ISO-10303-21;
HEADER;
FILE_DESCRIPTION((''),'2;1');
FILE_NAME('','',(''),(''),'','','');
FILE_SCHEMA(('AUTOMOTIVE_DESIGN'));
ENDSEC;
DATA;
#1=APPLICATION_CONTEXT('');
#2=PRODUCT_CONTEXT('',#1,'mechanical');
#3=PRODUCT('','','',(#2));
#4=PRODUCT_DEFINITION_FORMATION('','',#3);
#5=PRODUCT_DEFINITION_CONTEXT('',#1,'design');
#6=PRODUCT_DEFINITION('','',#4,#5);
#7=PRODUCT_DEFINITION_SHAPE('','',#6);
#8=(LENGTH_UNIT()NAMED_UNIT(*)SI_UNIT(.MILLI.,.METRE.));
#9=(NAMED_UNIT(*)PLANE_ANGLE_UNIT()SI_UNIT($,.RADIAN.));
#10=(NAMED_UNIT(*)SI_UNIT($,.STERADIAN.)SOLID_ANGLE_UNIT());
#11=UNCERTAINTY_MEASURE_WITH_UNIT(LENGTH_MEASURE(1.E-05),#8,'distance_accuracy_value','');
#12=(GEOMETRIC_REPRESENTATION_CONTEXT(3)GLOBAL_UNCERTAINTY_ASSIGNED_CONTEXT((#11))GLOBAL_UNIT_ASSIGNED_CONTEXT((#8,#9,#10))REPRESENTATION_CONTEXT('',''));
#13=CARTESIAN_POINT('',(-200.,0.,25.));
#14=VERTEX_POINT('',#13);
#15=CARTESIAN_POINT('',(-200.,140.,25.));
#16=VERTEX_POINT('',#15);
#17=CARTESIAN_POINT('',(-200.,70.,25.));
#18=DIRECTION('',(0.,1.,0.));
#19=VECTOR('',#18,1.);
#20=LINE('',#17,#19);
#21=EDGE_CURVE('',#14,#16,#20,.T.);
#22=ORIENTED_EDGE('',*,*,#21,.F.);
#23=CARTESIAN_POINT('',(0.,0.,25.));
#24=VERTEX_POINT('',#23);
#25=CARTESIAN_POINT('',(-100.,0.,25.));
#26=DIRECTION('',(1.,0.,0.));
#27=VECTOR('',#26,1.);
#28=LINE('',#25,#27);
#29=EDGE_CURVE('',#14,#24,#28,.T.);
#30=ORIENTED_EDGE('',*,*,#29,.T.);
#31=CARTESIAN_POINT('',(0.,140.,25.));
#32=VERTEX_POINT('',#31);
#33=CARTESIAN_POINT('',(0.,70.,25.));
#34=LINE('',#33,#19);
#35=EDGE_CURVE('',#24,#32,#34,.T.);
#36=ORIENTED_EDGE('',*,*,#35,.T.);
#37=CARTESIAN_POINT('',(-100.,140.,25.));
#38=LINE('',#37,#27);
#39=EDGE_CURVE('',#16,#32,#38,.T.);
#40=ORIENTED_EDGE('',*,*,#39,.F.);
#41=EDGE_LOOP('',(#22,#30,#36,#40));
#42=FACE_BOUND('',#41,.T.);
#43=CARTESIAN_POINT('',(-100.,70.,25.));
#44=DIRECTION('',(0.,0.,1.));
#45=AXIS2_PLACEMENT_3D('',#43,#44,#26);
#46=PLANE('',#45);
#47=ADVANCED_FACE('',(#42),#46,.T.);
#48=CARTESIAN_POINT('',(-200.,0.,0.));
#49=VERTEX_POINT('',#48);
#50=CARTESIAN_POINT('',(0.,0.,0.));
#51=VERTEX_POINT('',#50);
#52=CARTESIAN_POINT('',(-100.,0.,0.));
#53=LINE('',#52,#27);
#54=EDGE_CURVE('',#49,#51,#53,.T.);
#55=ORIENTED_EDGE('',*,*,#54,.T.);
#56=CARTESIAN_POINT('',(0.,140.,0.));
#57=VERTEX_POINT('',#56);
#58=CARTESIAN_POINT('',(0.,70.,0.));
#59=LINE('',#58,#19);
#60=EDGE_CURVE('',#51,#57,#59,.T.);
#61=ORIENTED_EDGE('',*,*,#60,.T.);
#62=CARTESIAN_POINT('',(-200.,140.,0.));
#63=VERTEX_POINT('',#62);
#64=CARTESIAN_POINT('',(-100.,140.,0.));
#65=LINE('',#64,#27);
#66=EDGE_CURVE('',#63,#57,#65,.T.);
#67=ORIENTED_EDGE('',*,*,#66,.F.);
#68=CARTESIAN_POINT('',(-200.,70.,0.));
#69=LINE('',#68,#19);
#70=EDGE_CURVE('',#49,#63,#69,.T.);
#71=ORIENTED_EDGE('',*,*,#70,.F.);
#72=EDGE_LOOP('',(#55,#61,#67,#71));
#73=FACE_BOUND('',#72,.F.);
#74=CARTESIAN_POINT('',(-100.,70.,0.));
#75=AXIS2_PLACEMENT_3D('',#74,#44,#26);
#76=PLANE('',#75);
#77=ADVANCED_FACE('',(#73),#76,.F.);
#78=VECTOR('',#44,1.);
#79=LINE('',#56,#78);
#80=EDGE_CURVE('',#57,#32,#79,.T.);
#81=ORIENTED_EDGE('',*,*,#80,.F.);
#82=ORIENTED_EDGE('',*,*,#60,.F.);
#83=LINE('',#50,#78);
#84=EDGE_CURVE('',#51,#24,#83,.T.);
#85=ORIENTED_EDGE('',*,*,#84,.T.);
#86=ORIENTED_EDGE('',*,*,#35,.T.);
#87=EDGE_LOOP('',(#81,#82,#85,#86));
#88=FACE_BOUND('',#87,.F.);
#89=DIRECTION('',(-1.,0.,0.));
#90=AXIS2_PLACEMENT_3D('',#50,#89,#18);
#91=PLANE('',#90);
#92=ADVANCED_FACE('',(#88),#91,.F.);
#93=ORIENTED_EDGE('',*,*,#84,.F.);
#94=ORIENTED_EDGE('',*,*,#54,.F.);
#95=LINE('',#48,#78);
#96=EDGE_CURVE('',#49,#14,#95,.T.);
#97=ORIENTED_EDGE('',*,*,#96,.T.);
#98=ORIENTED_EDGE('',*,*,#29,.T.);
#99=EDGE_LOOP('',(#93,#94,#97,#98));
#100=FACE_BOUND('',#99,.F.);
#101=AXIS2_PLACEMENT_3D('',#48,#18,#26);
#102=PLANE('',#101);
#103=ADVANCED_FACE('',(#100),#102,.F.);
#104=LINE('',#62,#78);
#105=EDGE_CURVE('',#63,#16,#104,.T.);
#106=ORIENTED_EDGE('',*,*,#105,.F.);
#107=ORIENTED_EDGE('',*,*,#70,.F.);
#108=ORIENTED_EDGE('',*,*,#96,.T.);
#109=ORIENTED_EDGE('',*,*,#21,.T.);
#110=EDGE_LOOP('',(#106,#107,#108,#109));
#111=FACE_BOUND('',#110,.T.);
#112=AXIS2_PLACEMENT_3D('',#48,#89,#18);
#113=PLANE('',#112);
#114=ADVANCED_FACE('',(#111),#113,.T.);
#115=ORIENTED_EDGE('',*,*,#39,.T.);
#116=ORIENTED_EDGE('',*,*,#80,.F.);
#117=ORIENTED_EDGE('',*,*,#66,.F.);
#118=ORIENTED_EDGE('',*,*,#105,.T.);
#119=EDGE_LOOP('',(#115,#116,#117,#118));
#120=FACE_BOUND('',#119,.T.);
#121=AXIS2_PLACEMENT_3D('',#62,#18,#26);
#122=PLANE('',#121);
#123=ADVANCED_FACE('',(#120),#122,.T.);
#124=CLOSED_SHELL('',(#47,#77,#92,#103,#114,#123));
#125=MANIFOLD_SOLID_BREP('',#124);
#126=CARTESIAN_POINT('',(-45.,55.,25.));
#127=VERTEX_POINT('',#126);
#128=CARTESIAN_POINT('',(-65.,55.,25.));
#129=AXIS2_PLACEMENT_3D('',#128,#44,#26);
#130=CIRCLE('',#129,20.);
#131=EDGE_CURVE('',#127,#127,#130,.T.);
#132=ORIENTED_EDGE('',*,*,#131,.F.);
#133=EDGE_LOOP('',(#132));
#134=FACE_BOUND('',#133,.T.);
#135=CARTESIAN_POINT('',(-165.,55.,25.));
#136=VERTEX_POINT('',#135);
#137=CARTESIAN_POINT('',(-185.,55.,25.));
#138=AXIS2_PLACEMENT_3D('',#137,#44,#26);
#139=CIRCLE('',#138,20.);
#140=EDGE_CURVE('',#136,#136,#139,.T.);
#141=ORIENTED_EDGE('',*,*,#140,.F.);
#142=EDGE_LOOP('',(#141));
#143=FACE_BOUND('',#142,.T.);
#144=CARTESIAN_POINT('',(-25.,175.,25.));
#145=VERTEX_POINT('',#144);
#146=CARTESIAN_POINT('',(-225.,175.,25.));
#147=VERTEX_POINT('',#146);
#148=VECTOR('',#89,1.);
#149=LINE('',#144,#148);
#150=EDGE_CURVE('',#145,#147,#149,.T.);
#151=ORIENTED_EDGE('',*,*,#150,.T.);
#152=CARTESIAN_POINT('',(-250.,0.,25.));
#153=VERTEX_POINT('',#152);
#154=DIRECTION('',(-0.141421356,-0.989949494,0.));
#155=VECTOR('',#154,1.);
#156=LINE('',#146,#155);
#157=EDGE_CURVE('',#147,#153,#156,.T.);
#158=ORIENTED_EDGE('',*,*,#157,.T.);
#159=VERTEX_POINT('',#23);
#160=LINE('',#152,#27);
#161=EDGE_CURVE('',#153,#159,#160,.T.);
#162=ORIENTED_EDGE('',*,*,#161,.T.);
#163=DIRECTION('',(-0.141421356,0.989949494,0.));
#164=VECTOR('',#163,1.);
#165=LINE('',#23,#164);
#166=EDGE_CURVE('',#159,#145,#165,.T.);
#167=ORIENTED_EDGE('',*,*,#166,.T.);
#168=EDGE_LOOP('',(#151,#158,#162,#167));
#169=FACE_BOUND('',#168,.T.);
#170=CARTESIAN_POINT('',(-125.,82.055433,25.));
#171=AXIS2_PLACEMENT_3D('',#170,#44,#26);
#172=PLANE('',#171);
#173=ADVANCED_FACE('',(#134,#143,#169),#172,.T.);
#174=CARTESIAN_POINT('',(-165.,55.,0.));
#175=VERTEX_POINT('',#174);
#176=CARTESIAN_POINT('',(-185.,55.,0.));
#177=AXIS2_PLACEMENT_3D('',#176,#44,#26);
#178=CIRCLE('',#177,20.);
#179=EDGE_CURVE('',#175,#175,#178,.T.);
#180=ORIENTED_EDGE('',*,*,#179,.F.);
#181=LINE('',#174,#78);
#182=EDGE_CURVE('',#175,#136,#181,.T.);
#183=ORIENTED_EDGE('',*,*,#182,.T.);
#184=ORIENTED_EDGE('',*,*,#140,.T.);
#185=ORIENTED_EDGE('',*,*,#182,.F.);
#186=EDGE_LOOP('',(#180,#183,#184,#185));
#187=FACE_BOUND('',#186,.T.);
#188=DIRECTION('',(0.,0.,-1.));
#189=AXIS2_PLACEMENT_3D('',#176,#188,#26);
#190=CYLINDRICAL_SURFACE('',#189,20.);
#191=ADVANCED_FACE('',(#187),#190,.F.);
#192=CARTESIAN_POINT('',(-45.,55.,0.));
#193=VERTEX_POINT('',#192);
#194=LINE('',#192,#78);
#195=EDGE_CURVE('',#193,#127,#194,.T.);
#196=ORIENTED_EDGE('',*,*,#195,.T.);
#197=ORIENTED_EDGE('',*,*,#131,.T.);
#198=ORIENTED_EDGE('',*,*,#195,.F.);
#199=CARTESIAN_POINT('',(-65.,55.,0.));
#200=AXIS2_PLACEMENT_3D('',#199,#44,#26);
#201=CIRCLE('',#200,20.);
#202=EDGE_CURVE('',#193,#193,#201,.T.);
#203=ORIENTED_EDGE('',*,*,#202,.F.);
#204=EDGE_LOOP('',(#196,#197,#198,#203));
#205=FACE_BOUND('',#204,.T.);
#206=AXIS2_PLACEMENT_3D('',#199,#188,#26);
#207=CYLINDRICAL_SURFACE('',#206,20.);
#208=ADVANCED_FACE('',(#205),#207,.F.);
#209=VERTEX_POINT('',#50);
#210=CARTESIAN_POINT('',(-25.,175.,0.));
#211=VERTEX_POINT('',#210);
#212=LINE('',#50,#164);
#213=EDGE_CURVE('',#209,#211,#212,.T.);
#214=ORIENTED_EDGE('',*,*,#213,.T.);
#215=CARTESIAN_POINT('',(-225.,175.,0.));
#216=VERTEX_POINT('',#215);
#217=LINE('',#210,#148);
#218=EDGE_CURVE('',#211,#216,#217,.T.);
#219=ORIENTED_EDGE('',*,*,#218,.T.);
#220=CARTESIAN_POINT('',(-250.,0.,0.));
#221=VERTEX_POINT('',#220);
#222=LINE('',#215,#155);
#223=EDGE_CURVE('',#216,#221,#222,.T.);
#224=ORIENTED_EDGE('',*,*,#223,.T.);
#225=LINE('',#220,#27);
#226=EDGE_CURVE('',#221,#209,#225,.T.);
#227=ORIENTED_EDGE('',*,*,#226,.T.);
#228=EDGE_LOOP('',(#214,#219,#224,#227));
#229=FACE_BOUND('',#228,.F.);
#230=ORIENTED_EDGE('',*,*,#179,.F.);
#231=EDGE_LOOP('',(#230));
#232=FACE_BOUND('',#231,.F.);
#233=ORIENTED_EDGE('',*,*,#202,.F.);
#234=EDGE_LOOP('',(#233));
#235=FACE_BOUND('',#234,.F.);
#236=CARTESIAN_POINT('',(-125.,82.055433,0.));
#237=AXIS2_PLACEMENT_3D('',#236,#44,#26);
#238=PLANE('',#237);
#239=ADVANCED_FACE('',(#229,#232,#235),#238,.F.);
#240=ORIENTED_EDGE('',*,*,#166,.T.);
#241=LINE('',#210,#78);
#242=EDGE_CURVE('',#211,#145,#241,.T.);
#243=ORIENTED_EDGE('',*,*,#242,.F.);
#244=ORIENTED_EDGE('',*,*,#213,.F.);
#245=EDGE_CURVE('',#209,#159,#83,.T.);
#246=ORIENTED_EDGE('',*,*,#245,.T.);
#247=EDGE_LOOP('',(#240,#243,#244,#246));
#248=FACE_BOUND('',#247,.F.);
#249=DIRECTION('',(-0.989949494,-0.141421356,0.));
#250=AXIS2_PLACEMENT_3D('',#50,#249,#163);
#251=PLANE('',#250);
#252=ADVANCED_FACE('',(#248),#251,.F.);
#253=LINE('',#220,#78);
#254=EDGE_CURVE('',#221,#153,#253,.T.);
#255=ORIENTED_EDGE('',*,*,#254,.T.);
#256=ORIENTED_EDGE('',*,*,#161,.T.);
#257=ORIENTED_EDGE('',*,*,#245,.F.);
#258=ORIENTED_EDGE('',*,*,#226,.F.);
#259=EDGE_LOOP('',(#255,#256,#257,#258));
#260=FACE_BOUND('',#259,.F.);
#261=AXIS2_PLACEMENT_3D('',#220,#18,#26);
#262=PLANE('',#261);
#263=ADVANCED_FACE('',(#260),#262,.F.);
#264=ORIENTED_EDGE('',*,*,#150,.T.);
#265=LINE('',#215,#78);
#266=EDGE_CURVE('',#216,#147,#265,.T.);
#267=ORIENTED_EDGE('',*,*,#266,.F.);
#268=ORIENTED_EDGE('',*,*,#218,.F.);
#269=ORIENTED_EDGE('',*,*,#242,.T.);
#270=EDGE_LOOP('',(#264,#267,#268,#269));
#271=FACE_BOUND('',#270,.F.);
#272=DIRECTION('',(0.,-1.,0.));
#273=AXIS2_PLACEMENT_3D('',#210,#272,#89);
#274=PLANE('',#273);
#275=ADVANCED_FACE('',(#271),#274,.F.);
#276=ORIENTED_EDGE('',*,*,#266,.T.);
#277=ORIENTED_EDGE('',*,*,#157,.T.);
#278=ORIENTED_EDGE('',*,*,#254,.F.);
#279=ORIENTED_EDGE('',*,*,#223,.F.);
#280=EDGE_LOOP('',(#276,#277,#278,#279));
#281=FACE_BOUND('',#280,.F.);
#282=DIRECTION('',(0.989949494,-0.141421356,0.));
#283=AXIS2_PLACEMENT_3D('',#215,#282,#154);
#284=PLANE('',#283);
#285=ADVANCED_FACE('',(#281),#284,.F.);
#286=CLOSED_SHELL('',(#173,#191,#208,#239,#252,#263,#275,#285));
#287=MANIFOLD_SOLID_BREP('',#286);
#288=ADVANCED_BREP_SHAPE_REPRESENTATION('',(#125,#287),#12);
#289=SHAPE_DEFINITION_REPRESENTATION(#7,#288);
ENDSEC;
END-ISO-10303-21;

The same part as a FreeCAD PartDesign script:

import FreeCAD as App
import Part
import Sketcher
from FreeCAD import Vector
Q = App.Units.Quantity

doc = App.newDocument("Part")
body = doc.addObject("PartDesign::Body", "Body")

# Sketch on XY plane
sketch1 = body.newObject("Sketcher::SketchObject", "Sketch")
sketch1.AttachmentSupport = (doc.getObject("XY_Plane"), [""])
sketch1.MapMode = "FlatFace"
sketch1.addGeometry([
    Part.LineSegment(Vector(-200, 140, 0), Vector(-200, 0, 0)),
    Part.LineSegment(Vector(-200, 0, 0), Vector(0, 0, 0)),
    Part.LineSegment(Vector(0, 0, 0), Vector(0, 140, 0)),
    Part.LineSegment(Vector(0, 140, 0), Vector(-200, 140, 0)),
], False)
sketch1.addConstraint([
    Sketcher.Constraint("Coincident", 0, 2, 1, 1),
    Sketcher.Constraint("Coincident", 1, 2, 2, 1),
    Sketcher.Constraint("Coincident", 2, 2, 3, 1),
    Sketcher.Constraint("Coincident", 3, 2, 0, 1),
    Sketcher.Constraint("Vertical", 0),
    Sketcher.Constraint("Horizontal", 1),
    Sketcher.Constraint("Vertical", 2),
    Sketcher.Constraint("Horizontal", 3),
    Sketcher.Constraint("Coincident", 1, 2, -1, 1),
    Sketcher.Constraint("DistanceX", 1, 1, 1, 2, Q("200 mm")),
    Sketcher.Constraint("DistanceY", 0, 2, 0, 1, Q("140 mm")),
])
pad1 = body.newObject("PartDesign::Pad", "Pad")
pad1.Profile = sketch1
pad1.Length = 25
body2 = doc.addObject("PartDesign::Body", "Body001")

# Sketch on XY plane
sketch2 = body2.newObject("Sketcher::SketchObject", "Sketch001")
sketch2.AttachmentSupport = (doc.getObject("XY_Plane001"), [""])
sketch2.MapMode = "FlatFace"
sketch2.addGeometry([
    Part.LineSegment(Vector(-250, 0, 0), Vector(0, 0, 0)),  # 0
    Part.LineSegment(Vector(0, 0, 0), Vector(-25, 175, 0)),  # 1
    Part.LineSegment(Vector(-25, 175, 0), Vector(-225, 175, 0)),  # 2
    Part.LineSegment(Vector(-225, 175, 0), Vector(-250, 0, 0)),  # 3
    Part.Circle(Vector(-185, 55, 0), Vector(0, 0, 1), 20),  # 4
    Part.Circle(Vector(-65, 55, 0), Vector(0, 0, 1), 20),  # 5
], False)
sketch2.addConstraint([
    Sketcher.Constraint("Coincident", 0, 2, 1, 1),
    Sketcher.Constraint("Coincident", 1, 2, 2, 1),
    Sketcher.Constraint("Coincident", 2, 2, 3, 1),
    Sketcher.Constraint("Coincident", 3, 2, 0, 1),
    Sketcher.Constraint("Horizontal", 0),
    Sketcher.Constraint("Horizontal", 2),
    Sketcher.Constraint("Coincident", 0, 2, -1, 1),
    Sketcher.Constraint("Equal", 4, 5),
    Sketcher.Constraint("Horizontal", 4, 3, 5, 3),
    Sketcher.Constraint("Equal", 1, 3),
    Sketcher.Constraint("Diameter", 4, Q("40 mm")),
    Sketcher.Constraint("DistanceX", 0, 1, 0, 2, Q("250 mm")),
    Sketcher.Constraint("DistanceX", 2, 2, 2, 1, Q("200 mm")),
    Sketcher.Constraint("DistanceX", 4, 3, -1, 1, Q("185 mm")),
    Sketcher.Constraint("DistanceY", -1, 1, 4, 3, Q("55 mm")),
    Sketcher.Constraint("DistanceX", 5, 3, -1, 1, Q("65 mm")),
    Sketcher.Constraint("DistanceY", -1, 1, 1, 2, Q("175 mm")),
])
pad2 = body2.newObject("PartDesign::Pad", "Pad001")
pad2.Profile = sketch2
pad2.Length = 25

doc.recompute()
